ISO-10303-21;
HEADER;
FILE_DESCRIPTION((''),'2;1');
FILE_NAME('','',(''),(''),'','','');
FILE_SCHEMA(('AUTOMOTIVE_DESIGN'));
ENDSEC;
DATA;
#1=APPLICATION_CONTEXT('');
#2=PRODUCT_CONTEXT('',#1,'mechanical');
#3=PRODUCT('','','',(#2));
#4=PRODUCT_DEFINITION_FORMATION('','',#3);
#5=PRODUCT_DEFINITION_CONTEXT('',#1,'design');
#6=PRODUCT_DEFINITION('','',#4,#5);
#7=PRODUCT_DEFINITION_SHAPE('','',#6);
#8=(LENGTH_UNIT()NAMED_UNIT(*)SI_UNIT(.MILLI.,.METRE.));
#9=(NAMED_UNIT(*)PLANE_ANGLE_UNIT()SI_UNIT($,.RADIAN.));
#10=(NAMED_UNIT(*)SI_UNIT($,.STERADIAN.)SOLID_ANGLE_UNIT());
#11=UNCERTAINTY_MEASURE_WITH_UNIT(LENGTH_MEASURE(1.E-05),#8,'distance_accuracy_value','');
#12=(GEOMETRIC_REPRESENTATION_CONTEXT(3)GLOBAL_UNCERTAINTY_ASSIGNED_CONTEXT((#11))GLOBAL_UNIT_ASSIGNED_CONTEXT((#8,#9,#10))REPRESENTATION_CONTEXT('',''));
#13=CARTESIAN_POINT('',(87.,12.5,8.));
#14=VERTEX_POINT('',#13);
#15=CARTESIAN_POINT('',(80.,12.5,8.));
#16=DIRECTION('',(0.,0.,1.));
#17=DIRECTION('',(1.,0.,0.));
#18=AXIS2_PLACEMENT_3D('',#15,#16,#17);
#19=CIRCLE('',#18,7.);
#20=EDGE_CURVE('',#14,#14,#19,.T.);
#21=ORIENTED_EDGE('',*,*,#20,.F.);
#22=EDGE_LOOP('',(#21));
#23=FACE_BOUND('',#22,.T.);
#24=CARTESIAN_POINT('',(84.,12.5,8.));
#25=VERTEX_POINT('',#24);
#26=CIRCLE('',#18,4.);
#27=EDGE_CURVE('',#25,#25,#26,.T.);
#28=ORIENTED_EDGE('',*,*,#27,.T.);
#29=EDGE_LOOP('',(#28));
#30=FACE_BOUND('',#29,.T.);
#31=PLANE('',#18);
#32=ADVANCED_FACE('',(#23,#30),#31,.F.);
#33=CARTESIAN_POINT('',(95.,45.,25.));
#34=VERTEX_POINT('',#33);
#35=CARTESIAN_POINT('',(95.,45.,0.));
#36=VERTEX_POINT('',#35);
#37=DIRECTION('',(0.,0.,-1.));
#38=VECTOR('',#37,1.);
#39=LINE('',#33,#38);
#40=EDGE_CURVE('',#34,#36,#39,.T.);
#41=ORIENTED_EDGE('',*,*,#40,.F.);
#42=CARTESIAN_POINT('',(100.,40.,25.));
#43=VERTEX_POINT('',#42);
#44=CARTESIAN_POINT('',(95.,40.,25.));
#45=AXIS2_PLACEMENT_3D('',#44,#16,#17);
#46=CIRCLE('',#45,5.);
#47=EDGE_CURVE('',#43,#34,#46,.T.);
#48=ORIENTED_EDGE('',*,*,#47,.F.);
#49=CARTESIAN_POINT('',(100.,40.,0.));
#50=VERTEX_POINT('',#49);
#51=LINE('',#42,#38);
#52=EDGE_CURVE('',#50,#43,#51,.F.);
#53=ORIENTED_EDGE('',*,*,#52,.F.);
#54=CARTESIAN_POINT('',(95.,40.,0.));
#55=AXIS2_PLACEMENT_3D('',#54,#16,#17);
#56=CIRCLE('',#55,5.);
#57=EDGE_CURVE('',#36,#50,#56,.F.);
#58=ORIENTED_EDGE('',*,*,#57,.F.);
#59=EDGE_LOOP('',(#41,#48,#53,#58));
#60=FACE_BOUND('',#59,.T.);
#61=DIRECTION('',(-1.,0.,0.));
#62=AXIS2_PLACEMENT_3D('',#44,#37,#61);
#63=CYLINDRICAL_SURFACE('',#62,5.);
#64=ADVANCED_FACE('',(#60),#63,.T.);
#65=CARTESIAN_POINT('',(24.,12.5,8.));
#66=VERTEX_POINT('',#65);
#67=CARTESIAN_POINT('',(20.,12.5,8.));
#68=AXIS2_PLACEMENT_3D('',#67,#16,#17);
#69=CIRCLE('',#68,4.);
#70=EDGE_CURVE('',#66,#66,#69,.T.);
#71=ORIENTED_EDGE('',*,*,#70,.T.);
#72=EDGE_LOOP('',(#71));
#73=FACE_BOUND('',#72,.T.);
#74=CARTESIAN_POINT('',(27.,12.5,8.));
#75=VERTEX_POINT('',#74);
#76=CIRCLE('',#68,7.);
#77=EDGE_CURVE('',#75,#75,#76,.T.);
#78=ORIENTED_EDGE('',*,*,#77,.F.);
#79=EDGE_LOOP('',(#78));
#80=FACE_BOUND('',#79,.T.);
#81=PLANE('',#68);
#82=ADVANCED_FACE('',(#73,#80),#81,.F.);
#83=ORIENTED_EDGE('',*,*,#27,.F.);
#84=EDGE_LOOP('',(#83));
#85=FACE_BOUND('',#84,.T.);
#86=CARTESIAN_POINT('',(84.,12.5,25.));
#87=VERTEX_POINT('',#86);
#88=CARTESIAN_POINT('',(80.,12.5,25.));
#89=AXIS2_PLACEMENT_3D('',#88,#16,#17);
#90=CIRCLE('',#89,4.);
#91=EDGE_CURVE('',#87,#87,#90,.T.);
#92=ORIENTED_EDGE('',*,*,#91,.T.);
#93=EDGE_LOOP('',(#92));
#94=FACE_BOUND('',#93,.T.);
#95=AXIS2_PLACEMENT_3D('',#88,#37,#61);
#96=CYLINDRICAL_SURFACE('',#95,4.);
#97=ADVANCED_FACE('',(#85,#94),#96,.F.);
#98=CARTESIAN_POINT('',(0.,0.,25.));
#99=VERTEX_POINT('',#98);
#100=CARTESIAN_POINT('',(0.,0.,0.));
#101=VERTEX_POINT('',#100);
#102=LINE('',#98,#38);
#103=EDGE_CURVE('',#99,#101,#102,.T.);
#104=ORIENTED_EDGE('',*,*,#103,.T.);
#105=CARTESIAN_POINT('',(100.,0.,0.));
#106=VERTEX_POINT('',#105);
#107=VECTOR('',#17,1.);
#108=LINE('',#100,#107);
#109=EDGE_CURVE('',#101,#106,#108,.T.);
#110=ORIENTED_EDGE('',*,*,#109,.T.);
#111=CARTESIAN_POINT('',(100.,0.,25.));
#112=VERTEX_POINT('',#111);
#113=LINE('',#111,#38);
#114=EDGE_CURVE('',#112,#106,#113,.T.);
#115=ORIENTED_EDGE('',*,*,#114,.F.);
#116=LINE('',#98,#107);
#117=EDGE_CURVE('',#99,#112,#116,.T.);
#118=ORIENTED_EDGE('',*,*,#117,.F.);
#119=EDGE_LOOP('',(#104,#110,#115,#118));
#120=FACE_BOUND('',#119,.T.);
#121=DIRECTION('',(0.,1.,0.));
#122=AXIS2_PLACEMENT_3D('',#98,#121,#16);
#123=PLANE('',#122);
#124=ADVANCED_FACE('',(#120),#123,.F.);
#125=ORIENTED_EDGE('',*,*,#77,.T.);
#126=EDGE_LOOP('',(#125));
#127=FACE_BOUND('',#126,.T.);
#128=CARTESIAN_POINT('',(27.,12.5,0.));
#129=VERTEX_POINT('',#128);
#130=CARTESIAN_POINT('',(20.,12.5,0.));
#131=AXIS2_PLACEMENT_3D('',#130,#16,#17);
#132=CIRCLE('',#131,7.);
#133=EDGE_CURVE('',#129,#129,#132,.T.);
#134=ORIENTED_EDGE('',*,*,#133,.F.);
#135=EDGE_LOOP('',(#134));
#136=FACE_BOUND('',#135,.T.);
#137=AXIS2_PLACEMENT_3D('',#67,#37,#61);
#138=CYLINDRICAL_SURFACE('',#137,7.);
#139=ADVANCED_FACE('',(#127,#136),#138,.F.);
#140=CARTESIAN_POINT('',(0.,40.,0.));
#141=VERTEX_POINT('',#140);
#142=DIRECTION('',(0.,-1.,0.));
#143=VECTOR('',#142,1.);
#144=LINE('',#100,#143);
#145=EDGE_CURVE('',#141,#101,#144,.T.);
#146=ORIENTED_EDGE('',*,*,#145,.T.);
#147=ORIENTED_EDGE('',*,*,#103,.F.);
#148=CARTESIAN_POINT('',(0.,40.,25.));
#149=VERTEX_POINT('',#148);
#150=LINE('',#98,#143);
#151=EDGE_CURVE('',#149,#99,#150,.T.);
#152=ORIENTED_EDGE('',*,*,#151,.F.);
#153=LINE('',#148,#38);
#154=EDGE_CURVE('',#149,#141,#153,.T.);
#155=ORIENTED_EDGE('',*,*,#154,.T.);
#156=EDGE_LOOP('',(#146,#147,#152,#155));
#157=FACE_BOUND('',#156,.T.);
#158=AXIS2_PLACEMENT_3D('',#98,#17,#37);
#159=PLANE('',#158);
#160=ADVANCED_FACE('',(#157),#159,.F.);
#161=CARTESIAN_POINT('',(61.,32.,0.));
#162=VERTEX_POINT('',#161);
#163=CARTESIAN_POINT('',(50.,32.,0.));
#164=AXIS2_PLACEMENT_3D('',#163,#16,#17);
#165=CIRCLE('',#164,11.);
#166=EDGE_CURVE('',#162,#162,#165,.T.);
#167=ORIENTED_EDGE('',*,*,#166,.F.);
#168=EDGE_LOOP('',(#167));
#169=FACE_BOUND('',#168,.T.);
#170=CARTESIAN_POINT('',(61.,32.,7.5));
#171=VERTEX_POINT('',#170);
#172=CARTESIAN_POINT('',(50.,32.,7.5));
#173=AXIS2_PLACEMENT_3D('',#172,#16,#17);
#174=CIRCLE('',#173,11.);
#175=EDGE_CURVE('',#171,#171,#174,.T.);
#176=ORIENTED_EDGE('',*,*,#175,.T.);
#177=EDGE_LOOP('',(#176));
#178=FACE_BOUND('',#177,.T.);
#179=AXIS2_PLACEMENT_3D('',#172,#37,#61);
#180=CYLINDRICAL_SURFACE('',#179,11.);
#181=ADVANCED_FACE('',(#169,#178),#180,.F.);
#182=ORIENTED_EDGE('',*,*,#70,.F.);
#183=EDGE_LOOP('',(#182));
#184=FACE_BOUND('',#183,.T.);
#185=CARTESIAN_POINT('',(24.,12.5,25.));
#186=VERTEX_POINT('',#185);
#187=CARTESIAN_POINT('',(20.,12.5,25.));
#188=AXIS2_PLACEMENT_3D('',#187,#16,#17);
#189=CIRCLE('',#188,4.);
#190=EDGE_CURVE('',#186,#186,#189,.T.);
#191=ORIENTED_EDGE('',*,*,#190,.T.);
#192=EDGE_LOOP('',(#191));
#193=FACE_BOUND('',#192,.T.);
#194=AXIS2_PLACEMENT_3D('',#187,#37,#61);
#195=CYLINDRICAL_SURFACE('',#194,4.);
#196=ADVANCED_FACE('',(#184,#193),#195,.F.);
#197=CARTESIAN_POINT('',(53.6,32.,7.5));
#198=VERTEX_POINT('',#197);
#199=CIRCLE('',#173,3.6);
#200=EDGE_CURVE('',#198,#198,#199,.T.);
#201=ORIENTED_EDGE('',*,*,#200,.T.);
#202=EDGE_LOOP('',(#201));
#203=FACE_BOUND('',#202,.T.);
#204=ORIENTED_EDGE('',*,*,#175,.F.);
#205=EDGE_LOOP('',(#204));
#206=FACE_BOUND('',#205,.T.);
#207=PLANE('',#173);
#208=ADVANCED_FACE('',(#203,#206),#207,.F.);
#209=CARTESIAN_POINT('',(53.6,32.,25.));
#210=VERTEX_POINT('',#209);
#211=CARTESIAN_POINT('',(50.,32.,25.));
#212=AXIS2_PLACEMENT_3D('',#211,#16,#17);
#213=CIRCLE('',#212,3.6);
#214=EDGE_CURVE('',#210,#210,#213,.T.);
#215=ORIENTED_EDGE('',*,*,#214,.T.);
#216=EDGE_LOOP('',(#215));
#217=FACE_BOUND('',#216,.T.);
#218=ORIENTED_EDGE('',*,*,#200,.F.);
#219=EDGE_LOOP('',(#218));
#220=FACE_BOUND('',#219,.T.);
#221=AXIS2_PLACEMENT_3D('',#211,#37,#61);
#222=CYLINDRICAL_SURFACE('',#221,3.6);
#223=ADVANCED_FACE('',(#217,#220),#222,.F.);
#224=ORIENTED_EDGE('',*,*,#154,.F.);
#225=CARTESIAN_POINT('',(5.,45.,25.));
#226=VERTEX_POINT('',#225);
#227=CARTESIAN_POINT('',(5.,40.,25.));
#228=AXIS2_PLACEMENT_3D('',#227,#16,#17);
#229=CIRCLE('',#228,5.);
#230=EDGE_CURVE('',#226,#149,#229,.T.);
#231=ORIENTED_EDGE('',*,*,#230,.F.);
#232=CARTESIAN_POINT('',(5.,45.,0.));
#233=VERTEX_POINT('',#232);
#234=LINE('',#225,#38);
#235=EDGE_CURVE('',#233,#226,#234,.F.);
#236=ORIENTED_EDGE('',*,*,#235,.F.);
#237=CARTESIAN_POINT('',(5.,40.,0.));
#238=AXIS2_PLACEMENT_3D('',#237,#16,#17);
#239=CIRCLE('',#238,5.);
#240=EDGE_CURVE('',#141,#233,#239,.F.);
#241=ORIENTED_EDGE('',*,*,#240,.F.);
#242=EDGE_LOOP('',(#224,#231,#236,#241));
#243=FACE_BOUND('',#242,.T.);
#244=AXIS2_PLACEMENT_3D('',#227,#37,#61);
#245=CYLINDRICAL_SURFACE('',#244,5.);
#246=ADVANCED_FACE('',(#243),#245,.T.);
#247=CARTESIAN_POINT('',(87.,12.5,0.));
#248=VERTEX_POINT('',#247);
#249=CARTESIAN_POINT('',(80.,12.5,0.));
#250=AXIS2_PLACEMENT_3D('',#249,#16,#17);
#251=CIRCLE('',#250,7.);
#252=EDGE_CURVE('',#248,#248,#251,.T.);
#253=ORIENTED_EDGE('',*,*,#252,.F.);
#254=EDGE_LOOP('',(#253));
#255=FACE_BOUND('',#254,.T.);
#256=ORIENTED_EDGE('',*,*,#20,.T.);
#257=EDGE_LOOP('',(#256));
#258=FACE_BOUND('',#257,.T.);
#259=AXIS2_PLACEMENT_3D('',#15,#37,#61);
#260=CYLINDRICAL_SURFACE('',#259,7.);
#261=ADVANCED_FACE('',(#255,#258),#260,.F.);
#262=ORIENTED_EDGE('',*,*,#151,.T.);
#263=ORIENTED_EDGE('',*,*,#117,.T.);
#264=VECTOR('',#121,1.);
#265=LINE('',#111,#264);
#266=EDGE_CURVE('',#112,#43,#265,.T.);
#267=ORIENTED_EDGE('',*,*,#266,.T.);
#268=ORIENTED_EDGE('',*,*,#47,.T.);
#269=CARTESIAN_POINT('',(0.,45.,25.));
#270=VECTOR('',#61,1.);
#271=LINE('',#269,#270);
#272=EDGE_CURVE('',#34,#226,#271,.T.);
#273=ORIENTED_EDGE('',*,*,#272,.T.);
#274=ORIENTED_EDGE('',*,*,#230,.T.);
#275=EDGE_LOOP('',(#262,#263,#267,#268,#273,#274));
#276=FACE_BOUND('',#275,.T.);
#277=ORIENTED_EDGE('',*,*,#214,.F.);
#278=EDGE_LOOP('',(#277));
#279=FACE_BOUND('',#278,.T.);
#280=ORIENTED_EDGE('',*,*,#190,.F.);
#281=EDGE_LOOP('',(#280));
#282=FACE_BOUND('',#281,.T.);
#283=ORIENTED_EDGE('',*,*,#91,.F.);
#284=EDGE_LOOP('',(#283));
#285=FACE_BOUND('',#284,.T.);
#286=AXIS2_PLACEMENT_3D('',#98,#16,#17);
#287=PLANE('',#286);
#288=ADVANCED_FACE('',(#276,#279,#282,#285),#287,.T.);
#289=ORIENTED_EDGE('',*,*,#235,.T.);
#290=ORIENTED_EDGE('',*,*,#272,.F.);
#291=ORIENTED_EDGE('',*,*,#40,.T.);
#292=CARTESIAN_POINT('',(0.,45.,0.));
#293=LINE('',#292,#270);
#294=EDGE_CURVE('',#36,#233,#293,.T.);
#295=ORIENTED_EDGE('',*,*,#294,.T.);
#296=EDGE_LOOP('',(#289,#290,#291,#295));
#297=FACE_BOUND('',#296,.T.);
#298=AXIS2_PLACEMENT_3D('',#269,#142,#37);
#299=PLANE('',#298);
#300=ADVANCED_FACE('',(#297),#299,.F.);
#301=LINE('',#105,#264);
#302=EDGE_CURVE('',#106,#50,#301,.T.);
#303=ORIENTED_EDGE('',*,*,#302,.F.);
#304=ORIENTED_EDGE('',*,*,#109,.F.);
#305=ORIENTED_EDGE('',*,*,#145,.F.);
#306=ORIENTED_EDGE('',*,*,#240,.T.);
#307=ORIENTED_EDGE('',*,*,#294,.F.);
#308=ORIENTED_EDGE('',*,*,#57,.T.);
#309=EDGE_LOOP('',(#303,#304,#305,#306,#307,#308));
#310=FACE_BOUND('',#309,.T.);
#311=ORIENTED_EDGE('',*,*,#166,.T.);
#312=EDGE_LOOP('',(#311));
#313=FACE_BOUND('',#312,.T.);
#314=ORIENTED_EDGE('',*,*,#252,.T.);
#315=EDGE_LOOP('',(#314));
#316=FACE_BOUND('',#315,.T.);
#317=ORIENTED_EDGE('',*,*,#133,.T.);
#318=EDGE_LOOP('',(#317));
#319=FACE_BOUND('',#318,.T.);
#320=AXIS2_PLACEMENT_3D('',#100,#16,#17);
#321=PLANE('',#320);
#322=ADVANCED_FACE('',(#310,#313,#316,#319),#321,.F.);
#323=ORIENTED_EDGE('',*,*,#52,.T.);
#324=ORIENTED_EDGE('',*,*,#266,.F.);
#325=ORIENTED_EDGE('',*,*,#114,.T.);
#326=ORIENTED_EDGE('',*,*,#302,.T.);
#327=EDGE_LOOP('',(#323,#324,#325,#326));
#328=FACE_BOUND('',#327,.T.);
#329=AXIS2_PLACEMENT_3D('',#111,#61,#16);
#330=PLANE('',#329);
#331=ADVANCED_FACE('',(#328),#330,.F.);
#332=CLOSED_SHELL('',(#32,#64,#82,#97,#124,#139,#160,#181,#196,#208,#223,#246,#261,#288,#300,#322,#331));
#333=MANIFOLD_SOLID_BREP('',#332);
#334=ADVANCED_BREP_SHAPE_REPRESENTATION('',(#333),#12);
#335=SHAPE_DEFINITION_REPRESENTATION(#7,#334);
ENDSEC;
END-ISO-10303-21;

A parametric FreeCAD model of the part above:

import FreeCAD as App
import Part
import Sketcher

V = App.Vector


def edges_at(feature, points):
    """Names of the edges that pass closest to the given points."""
    edges = feature.Shape.Edges
    near = lambda p: min(range(len(edges)), key=lambda i: edges[i].distToShape(Part.Vertex(*p))[0])
    return sorted({f"Edge{near(p) + 1}" for p in points})

doc = App.newDocument("Part")
body = doc.addObject("PartDesign::Body", "Body")

sketch1 = body.newObject("Sketcher::SketchObject", "Sketch")
sketch1.AttachmentSupport = (doc.getObject("XY_Plane"), [""])
sketch1.MapMode = "FlatFace"
sketch1.addGeometry([
    Part.LineSegment(V(0, 45, 0), V(0, 0, 0)),
    Part.LineSegment(V(0, 0, 0), V(100, 0, 0)),
    Part.LineSegment(V(100, 0, 0), V(100, 45, 0)),
    Part.LineSegment(V(100, 45, 0), V(0, 45, 0)),
    Part.Circle(V(20, 12.5, 0), V(0, 0, 1), 4),
    Part.Circle(V(80, 12.5, 0), V(0, 0, 1), 4),
    Part.Circle(V(50, 32, 0), V(0, 0, 1), 3.6),
], False)
sketch1.addConstraint([
    Sketcher.Constraint("Coincident", 0, 2, 1, 1),
    Sketcher.Constraint("Coincident", 1, 2, 2, 1),
    Sketcher.Constraint("Coincident", 2, 2, 3, 1),
    Sketcher.Constraint("Coincident", 3, 2, 0, 1),
    Sketcher.Constraint("Vertical", 0),
    Sketcher.Constraint("Horizontal", 1),
    Sketcher.Constraint("Vertical", 2),
    Sketcher.Constraint("Horizontal", 3),
    Sketcher.Constraint("Coincident", 0, 2, -1, 1),
    Sketcher.Constraint("Equal", 4, 5),
    Sketcher.Constraint("Horizontal", 4, 3, 5, 3),
    Sketcher.Constraint("Diameter", 4, 8.0),
    Sketcher.Constraint("Diameter", 6, 7.2),
    Sketcher.Constraint("DistanceX", 1, 1, 1, 2, 100.0),
    Sketcher.Constraint("DistanceY", 0, 2, 0, 1, 45.0),
    Sketcher.Constraint("DistanceX", -1, 1, 4, 3, 20.0),
    Sketcher.Constraint("DistanceX", -1, 1, 5, 3, 80.0),
    Sketcher.Constraint("DistanceX", -1, 1, 6, 3, 50.0),
    Sketcher.Constraint("DistanceY", -1, 1, 6, 3, 32.0),
    Sketcher.Constraint("DistanceY", -1, 1, 4, 3, 12.5),
])
pad1 = body.newObject("PartDesign::Pad", "Pad")
pad1.Profile = sketch1
pad1.Length = 25

sketch2 = body.newObject("Sketcher::SketchObject", "Sketch001")
sketch2.AttachmentSupport = (doc.getObject("XY_Plane"), [""])
sketch2.MapMode = "FlatFace"
sketch2.addGeometry(Part.Circle(V(50, 32, 0), V(0, 0, 1), 11), False)
sketch2.addConstraint([
    Sketcher.Constraint("Diameter", 0, 22.0),
    Sketcher.Constraint("DistanceX", -1, 1, 0, 3, 50.0),
    Sketcher.Constraint("DistanceY", -1, 1, 0, 3, 32.0),
])
pocket1 = body.newObject("PartDesign::Pocket", "Pocket")
pocket1.Profile = sketch2
pocket1.Length = 7.5
pocket1.Reversed = True
doc.recompute()

fillet = body.newObject("PartDesign::Fillet", "Fillet")
fillet.Base = (pocket1, edges_at(pocket1, [(100, 45, 12.5), (0, 45, 12.5)]))
fillet.Radius = 5

sketch3 = body.newObject("Sketcher::SketchObject", "Sketch002")
sketch3.AttachmentSupport = (doc.getObject("XY_Plane"), [""])
sketch3.MapMode = "FlatFace"
sketch3.addGeometry([
    Part.Circle(V(80, 12, 0), V(0, 0, 1), 7),
    Part.Circle(V(20, 12, 0), V(0, 0, 1), 7),
], False)
sketch3.addConstraint([
    Sketcher.Constraint("Equal", 0, 1),
    Sketcher.Constraint("Horizontal", 0, 3, 1, 3),
    Sketcher.Constraint("Diameter", 0, 14.0),
    Sketcher.Constraint("DistanceX", -1, 1, 0, 3, 80.0),
    Sketcher.Constraint("DistanceX", -1, 1, 1, 3, 20.0),
    Sketcher.Constraint("DistanceY", -1, 1, 0, 3, 12.5),
])
pocket2 = body.newObject("PartDesign::Pocket", "Pocket001")
pocket2.Profile = sketch3
pocket2.Length = 8
pocket2.Reversed = True

doc.recompute()
